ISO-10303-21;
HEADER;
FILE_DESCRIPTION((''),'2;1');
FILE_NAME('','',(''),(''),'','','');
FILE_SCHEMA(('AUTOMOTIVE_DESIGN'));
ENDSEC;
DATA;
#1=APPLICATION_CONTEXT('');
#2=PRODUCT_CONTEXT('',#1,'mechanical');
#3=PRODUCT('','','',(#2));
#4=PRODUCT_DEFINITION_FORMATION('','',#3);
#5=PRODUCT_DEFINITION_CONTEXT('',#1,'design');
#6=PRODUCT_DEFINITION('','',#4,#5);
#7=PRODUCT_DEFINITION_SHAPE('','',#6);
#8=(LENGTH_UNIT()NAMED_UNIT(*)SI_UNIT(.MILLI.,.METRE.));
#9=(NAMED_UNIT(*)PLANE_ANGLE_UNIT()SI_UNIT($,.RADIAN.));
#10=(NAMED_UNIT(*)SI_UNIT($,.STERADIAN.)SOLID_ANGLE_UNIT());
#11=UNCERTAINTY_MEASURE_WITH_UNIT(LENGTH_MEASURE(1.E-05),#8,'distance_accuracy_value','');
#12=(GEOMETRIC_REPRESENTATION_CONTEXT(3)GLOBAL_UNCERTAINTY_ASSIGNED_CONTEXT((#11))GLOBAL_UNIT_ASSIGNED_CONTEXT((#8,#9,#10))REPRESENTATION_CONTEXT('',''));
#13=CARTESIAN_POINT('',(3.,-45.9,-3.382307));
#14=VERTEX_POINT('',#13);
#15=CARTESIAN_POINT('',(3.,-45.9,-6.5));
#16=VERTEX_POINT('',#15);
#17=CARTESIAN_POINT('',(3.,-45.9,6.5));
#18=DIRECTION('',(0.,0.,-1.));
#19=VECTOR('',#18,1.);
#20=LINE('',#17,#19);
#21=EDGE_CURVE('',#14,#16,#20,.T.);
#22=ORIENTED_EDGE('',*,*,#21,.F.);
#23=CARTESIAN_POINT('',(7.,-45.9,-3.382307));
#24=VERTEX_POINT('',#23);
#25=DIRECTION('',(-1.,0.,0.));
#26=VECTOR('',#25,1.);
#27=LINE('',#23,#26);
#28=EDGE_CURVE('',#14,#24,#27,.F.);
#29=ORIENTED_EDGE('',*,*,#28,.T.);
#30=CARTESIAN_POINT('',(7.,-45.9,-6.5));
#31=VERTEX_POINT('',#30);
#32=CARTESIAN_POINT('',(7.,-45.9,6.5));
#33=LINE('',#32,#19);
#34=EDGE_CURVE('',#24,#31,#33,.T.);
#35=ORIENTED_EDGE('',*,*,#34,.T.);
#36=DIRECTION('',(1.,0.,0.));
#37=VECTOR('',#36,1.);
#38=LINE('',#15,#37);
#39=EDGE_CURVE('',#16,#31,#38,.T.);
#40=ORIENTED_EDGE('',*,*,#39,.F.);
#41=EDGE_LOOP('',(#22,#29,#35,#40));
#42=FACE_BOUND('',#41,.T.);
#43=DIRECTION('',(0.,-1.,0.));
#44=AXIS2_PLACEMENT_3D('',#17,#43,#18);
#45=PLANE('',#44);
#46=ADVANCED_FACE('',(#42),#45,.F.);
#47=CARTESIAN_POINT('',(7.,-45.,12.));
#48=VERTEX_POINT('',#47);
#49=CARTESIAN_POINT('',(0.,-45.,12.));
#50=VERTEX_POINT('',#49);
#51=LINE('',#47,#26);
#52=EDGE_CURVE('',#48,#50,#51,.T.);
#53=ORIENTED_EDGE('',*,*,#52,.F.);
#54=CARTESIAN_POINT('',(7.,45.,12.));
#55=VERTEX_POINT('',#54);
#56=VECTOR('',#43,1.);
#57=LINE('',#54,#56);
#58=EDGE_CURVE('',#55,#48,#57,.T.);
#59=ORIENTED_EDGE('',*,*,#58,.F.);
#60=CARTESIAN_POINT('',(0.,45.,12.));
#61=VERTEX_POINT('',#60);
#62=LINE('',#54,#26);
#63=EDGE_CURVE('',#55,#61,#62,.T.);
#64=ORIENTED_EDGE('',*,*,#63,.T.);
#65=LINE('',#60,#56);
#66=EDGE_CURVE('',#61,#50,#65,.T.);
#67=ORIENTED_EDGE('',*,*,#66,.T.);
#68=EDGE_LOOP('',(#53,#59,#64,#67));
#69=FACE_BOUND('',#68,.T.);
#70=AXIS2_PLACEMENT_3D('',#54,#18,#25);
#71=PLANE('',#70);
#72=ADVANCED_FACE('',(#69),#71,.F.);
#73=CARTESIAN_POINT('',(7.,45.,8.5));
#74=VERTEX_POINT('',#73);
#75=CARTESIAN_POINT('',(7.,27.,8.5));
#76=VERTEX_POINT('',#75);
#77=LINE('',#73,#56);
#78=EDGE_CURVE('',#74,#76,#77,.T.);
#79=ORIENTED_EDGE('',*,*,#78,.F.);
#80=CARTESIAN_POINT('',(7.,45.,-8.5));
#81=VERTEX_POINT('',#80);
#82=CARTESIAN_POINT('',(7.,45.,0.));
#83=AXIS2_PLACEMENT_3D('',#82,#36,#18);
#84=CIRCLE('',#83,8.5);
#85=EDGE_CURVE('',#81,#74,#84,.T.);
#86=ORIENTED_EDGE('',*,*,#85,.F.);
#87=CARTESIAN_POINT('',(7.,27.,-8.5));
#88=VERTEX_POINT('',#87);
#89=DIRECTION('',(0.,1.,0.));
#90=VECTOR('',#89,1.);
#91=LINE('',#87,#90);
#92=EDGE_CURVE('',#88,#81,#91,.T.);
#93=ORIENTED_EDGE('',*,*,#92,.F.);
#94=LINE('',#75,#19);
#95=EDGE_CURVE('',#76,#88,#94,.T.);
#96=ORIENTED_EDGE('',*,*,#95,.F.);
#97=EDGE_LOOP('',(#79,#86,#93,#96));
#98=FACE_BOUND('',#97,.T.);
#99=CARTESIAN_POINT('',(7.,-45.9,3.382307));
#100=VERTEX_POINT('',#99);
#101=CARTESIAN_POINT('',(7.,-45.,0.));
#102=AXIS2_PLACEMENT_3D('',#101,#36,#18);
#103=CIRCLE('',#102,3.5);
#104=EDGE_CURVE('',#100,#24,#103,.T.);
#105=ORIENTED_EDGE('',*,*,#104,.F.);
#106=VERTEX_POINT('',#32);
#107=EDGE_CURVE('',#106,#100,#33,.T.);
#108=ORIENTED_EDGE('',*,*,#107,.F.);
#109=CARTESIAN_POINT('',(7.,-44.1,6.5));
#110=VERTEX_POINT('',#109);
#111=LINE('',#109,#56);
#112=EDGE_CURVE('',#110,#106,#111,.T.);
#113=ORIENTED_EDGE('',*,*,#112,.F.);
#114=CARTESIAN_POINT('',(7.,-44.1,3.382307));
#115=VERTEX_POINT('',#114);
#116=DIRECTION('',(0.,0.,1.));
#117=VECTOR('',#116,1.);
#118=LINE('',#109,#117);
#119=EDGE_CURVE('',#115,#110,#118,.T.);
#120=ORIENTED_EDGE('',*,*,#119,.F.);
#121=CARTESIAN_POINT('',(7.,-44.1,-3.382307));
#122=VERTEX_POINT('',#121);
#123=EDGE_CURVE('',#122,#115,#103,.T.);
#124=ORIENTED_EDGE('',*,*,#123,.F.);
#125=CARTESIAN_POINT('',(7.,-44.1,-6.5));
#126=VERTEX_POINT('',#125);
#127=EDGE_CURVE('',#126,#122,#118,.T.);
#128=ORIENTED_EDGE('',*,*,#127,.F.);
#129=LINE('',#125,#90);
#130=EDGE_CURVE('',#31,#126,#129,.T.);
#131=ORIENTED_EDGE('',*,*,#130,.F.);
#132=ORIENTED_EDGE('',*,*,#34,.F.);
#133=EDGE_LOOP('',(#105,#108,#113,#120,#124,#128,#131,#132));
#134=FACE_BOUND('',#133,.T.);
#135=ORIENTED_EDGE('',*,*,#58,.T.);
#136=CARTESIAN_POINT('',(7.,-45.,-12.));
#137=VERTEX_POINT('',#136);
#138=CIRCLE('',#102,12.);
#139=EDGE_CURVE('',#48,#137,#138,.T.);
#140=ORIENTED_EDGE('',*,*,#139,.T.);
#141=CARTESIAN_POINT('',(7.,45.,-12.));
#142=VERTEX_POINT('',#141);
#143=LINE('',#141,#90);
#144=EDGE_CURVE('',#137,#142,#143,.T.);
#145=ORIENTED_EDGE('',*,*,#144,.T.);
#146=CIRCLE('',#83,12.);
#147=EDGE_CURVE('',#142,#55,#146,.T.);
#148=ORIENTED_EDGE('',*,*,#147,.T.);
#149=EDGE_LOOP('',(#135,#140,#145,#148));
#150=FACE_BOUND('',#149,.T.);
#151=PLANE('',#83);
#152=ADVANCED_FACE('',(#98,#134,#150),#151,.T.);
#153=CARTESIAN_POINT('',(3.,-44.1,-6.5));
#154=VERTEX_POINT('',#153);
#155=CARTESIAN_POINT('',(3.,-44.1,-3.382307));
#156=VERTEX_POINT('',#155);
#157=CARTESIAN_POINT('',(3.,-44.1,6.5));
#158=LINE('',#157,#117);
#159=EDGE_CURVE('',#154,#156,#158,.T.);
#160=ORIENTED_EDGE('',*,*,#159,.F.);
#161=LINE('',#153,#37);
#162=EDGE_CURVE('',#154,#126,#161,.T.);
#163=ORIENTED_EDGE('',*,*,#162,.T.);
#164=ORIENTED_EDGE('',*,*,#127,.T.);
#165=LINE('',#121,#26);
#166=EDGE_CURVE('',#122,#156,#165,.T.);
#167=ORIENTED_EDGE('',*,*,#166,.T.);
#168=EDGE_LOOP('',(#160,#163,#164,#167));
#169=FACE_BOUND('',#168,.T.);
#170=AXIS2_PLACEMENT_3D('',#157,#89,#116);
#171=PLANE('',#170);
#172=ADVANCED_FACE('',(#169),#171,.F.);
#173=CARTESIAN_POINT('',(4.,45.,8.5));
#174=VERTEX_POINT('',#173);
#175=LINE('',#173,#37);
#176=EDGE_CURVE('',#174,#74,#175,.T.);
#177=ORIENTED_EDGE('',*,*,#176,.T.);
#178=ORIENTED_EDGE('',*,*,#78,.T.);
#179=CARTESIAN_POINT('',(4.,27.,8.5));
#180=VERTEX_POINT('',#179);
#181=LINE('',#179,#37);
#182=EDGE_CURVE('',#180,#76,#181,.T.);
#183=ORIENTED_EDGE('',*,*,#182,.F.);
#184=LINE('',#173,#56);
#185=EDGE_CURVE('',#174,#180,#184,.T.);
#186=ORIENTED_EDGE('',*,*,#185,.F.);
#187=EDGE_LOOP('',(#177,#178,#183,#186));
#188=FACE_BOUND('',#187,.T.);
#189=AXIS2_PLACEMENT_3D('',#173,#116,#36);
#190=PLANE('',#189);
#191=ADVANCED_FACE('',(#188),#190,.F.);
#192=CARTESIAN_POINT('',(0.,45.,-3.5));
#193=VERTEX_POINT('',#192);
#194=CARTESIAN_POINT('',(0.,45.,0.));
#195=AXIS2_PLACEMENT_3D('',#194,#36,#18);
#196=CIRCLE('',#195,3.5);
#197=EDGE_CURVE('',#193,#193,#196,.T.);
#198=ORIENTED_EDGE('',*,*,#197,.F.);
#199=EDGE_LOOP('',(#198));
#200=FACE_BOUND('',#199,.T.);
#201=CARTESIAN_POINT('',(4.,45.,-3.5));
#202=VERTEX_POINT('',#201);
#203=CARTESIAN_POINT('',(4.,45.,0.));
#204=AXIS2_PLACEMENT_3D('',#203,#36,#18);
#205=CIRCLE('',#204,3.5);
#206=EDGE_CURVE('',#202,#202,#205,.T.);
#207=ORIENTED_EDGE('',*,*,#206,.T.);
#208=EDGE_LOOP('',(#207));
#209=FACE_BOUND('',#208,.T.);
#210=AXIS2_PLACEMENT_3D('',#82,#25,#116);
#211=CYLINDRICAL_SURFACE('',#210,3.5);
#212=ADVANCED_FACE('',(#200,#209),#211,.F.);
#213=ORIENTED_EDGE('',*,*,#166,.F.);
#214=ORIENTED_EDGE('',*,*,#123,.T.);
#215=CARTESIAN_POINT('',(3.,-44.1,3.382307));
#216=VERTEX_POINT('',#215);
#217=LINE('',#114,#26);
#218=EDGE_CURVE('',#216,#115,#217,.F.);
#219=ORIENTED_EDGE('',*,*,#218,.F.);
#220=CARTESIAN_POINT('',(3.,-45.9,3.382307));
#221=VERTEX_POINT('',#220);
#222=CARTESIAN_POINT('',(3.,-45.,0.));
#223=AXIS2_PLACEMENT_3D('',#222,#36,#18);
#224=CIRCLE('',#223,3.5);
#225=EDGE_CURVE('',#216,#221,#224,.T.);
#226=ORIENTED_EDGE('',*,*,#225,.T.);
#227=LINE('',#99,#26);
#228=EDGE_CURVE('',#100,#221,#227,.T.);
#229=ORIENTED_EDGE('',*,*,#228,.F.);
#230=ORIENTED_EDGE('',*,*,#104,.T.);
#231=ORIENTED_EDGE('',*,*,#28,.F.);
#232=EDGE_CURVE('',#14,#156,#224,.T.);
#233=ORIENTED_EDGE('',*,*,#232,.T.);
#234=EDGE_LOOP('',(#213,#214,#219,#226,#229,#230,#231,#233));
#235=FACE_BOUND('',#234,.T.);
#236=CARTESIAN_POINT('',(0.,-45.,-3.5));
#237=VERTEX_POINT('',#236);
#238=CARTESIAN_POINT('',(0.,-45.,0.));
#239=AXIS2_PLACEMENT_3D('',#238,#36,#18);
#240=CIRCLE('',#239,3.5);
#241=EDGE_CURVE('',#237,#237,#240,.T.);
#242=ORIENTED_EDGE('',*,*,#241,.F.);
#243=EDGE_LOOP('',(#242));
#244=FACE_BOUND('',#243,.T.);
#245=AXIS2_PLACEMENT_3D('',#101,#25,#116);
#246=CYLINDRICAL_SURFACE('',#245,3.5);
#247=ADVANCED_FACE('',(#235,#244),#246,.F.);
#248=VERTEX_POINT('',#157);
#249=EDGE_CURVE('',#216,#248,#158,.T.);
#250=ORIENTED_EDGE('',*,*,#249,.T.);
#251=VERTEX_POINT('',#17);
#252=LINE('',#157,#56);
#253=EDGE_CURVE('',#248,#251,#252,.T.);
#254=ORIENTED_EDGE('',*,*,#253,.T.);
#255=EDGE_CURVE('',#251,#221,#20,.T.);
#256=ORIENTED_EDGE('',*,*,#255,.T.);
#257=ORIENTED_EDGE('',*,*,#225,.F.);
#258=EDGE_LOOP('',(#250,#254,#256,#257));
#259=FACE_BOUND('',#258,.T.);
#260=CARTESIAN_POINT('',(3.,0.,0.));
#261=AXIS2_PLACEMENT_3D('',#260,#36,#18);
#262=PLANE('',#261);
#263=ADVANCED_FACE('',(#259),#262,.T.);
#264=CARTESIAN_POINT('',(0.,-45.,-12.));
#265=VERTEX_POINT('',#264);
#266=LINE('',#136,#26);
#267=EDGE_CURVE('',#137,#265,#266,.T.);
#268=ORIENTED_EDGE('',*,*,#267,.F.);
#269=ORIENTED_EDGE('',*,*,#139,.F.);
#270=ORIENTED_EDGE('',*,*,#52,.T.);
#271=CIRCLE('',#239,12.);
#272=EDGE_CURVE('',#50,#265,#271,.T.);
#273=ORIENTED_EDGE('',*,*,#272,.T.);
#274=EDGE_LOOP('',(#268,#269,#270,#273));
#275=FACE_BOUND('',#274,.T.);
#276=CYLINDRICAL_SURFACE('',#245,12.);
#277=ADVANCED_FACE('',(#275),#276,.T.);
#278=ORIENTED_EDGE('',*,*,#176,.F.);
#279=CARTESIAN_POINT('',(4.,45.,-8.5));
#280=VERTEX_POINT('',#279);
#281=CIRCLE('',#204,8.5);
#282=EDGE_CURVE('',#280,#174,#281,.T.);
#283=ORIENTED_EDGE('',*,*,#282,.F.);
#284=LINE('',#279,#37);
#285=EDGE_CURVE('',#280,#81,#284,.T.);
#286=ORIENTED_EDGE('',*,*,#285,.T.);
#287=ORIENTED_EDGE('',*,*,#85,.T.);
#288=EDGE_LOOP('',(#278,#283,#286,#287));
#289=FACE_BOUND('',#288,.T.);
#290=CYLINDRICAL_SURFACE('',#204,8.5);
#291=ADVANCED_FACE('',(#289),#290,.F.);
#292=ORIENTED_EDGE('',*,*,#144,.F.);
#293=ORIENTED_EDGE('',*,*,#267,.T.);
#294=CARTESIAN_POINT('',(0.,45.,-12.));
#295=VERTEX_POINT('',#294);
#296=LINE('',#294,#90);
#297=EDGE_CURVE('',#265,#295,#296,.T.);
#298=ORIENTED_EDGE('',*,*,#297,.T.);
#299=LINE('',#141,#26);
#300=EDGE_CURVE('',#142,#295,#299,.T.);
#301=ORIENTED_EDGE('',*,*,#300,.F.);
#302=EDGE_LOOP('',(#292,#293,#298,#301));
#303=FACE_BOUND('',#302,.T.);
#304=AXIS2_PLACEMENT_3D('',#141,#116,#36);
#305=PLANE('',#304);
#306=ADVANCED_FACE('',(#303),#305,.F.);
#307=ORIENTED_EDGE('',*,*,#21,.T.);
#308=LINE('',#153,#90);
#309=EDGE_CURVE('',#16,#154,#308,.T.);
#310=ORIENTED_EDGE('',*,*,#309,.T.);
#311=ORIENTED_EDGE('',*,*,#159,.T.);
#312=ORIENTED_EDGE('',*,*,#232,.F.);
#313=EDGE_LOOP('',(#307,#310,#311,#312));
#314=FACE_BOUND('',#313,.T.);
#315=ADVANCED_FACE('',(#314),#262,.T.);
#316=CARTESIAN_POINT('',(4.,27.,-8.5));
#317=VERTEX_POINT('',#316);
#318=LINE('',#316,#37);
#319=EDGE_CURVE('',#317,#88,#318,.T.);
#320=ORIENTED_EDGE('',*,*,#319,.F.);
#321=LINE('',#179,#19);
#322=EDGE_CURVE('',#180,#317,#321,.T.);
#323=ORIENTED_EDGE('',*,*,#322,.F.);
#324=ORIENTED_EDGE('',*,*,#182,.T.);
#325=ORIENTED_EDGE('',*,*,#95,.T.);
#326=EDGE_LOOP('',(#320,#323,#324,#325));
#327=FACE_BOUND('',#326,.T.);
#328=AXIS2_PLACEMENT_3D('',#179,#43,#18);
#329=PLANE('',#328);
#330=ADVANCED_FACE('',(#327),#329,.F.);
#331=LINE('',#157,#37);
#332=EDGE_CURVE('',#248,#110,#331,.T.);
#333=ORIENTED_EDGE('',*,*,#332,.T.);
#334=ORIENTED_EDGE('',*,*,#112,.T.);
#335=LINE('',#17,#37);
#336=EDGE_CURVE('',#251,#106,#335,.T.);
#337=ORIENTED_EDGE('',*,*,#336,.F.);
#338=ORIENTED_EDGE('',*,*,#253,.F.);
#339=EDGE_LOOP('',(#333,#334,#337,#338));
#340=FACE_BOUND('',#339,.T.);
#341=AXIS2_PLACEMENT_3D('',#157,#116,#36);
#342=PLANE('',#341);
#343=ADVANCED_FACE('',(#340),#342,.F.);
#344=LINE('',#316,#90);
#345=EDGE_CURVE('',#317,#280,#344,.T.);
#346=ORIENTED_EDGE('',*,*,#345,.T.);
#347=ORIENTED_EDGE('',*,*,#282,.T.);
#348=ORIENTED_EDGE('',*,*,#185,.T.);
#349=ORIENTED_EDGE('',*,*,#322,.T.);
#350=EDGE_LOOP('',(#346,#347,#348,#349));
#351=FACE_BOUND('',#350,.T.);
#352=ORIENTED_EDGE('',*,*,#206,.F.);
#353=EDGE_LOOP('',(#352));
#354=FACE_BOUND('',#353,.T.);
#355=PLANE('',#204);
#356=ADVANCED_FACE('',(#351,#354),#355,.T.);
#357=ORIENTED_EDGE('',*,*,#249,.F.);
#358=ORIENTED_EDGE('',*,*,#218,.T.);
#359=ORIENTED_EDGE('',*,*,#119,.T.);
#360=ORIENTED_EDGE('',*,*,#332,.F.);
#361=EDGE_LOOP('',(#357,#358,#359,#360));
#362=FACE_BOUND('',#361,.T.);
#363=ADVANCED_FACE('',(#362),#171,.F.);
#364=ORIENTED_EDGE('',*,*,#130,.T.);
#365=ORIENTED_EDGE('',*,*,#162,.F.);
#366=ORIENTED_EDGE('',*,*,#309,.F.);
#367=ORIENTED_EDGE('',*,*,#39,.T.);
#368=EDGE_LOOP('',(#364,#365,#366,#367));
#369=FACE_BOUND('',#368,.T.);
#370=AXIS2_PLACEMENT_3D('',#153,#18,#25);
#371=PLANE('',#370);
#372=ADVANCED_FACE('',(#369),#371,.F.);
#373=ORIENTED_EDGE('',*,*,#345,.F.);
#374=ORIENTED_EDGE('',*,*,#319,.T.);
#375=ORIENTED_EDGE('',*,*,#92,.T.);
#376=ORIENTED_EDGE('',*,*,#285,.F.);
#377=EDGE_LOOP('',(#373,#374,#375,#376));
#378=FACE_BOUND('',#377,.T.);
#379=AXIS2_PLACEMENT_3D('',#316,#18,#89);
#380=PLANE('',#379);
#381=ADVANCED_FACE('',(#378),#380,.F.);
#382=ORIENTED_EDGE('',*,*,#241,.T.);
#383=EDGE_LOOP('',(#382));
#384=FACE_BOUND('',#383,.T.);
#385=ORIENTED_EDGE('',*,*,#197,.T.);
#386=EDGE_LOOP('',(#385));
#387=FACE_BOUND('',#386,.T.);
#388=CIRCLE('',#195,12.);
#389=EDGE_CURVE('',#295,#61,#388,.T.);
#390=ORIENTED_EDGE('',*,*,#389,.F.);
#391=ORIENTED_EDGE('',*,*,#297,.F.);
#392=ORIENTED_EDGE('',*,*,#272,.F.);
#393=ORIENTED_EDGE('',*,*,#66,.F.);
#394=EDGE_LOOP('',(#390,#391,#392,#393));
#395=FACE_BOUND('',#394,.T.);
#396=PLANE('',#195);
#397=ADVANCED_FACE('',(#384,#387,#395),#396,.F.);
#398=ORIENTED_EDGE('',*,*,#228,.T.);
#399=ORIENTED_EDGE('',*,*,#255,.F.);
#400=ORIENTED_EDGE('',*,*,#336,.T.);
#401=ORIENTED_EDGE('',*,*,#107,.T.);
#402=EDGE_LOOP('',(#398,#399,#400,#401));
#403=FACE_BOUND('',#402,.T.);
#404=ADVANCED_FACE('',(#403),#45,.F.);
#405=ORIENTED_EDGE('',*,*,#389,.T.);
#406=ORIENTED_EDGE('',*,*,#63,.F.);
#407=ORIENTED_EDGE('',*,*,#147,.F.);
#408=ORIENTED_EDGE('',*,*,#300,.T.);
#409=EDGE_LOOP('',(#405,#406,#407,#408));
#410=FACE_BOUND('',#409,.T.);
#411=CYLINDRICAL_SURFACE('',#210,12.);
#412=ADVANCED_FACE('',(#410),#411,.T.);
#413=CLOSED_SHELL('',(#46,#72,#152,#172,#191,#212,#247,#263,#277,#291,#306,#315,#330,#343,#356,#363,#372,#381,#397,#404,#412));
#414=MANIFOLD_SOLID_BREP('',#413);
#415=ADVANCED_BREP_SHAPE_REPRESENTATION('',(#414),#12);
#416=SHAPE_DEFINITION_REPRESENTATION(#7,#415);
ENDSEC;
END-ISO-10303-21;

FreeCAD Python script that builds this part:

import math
import FreeCAD as App
import Part
import Sketcher

V = App.Vector


def add_polygon(sketch, points):
    """Adds a closed chain of lines whose ends are joined by coincident constraints."""
    first, n = sketch.GeometryCount, len(points)
    for a, b in zip(points, points[1:] + points[:1]):
        sketch.addGeometry(Part.LineSegment(App.Vector(*a, 0), App.Vector(*b, 0)), False)
    for i in range(n):
        sketch.addConstraint(Sketcher.Constraint("Coincident", first + i, 2, first + (i + 1) % n, 1))

doc = App.newDocument("Part")
params = doc.addObject("Spreadsheet::Sheet", "Params")
for row, (alias, value) in enumerate([
    ("sketch1_diameter", "7 mm"),
    ("sketch1_radius", "12 mm"),
    ("sketch1_width", "90 mm"),
    ("pad1_length", "7 mm"),
    ("sketch2_radius", "8.5 mm"),
    ("sketch2_width", "18 mm"),
    ("pocket1_length", "3 mm"),
    ("sketch3_height", "13 mm"),
    ("sketch3_width", "1.8 mm"),
    ("pocket2_length", "4 mm"),
], start=1):
    params.set(f"A{row}", alias)
    params.set(f"B{row}", "=" + value)
    params.setAlias(f"B{row}", alias)

body = doc.addObject("PartDesign::Body", "Body")

sketch1 = doc.addObject("Sketcher::SketchObject", "Sketch")
body.addObject(sketch1)
sketch1.AttachmentSupport = (doc.YZ_Plane, [""])
sketch1.MapMode = "FlatFace"
sketch1.addGeometry([
    Part.LineSegment(V(45, 12, 0), V(-45, 12, 0)),
    Part.ArcOfCircle(Part.Circle(V(-45, 0, 0), V(0, 0, 1), 12), math.radians(90), math.radians(270)),
    Part.LineSegment(V(-45, -12, 0), V(45, -12, 0)),
    Part.ArcOfCircle(Part.Circle(V(45, 0, 0), V(0, 0, 1), 12), math.radians(-90), math.radians(90)),
    Part.Circle(V(-45, 0, 0), V(0, 0, 1), 3.5),
    Part.Circle(V(45, 0, 0), V(0, 0, 1), 3.5),
], False)
sketch1.addConstraint([
    Sketcher.Constraint("Tangent", 0, 2, 1, 1),
    Sketcher.Constraint("Tangent", 1, 2, 2, 1),
    Sketcher.Constraint("Tangent", 2, 2, 3, 1),
    Sketcher.Constraint("Tangent", 3, 2, 0, 1),
    Sketcher.Constraint("Horizontal", 0),
    Sketcher.Constraint("Horizontal", 2),
    Sketcher.Constraint("Coincident", 4, 3, 1, 3),
    Sketcher.Constraint("Coincident", 5, 3, 3, 3),
    Sketcher.Constraint("Equal", 4, 5),
    Sketcher.Constraint("Symmetric", 1, 3, 3, 3, -1, 1),
    Sketcher.Constraint("Diameter", 4, 7.0),
    Sketcher.Constraint("Radius", 1, 12.0),
    Sketcher.Constraint("DistanceX", 0, 2, 0, 1, 90.0),
])
sketch1.setExpression("Constraints[10]", "Params.sketch1_diameter")
sketch1.setExpression("Constraints[11]", "Params.sketch1_radius")
sketch1.setExpression("Constraints[12]", "Params.sketch1_width")
pad1 = doc.addObject("PartDesign::Pad", "Pad")
body.addObject(pad1)
pad1.Profile = sketch1
pad1.setExpression("Length", "Params.pad1_length")

sketch2 = doc.addObject("Sketcher::SketchObject", "Sketch001")
body.addObject(sketch2)
sketch2.AttachmentSupport = (doc.YZ_Plane, [""])
sketch2.MapMode = "FlatFace"
sketch2.AttachmentOffset = App.Placement(V(0, 0, 7), App.Rotation())
sketch2.addGeometry([
    Part.LineSegment(V(45, 8.5, 0), V(27, 8.5, 0)),
    Part.LineSegment(V(27, 8.5, 0), V(27, -8.5, 0)),
    Part.LineSegment(V(27, -8.5, 0), V(45, -8.5, 0)),
    Part.ArcOfCircle(Part.Circle(V(45, 0, 0), V(0, 0, 1), 8.5), math.radians(-90), math.radians(90)),
], False)
sketch2.addConstraint([
    Sketcher.Constraint("Coincident", 0, 2, 1, 1),
    Sketcher.Constraint("Coincident", 1, 2, 2, 1),
    Sketcher.Constraint("Tangent", 2, 2, 3, 1),
    Sketcher.Constraint("Tangent", 3, 2, 0, 1),
    Sketcher.Constraint("Horizontal", 0),
    Sketcher.Constraint("Vertical", 1),
    Sketcher.Constraint("Horizontal", 2),
    Sketcher.Constraint("PointOnObject", 3, 3, -1),
    Sketcher.Constraint("Radius", 3, 8.5),
    Sketcher.Constraint("DistanceX", 0, 2, 0, 1, 18.0),
    Sketcher.Constraint("DistanceX", -1, 1, 3, 3, 45.0),
])
sketch2.setExpression("Constraints[8]", "Params.sketch2_radius")
sketch2.setExpression("Constraints[9]", "Params.sketch2_width")
pocket1 = doc.addObject("PartDesign::Pocket", "Pocket")
body.addObject(pocket1)
pocket1.Profile = sketch2
pocket1.setExpression("Length", "Params.pocket1_length")

sketch3 = doc.addObject("Sketcher::SketchObject", "Sketch002")
body.addObject(sketch3)
sketch3.AttachmentSupport = (doc.YZ_Plane, [""])
sketch3.MapMode = "FlatFace"
sketch3.AttachmentOffset = App.Placement(V(0, 0, 7), App.Rotation())
add_polygon(sketch3, [(-44.1, 6.5), (-45.9, 6.5), (-45.9, -6.5), (-44.1, -6.5)])
sketch3.addConstraint([
    Sketcher.Constraint("Horizontal", 0),
    Sketcher.Constraint("Vertical", 1),
    Sketcher.Constraint("Horizontal", 2),
    Sketcher.Constraint("Vertical", 3),
    Sketcher.Constraint("DistanceY", 1, 2, 1, 1, 13.0),
    Sketcher.Constraint("DistanceX", 0, 2, 0, 1, 1.8),
    Sketcher.Constraint("DistanceX", 0, 2, -1, 1, 45.9),
    Sketcher.Constraint("DistanceY", -1, 1, 0, 2, 6.5),
])
sketch3.setExpression("Constraints[8]", "Params.sketch3_height")
sketch3.setExpression("Constraints[9]", "Params.sketch3_width")
pocket2 = doc.addObject("PartDesign::Pocket", "Pocket001")
body.addObject(pocket2)
pocket2.Profile = sketch3
pocket2.setExpression("Length", "Params.pocket2_length")

doc.recompute()
